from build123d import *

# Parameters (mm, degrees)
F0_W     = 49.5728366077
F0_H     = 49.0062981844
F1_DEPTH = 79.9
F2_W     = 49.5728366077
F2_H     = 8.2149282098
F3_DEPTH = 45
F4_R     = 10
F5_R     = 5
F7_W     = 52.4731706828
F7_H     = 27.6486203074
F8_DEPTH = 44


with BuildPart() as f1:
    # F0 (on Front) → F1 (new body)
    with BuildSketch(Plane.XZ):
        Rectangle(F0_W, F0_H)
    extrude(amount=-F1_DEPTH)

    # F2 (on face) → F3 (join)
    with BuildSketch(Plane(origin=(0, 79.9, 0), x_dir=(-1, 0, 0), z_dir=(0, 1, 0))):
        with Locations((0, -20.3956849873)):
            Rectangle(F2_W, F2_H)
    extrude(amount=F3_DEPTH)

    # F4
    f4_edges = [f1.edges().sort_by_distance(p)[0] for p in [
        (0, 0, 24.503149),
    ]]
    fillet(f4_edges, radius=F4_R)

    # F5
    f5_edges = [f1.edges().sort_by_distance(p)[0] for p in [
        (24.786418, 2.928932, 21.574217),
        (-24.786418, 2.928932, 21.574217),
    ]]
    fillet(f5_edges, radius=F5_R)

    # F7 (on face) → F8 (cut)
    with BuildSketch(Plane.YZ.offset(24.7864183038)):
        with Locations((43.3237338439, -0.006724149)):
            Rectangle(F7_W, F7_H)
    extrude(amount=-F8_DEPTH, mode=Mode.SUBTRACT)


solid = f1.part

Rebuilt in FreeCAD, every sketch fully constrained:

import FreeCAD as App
import Part
import Sketcher

V = App.Vector


def edges_at(feature, points):
    """Names of the edges that pass closest to the given points."""
    edges = feature.Shape.Edges
    near = lambda p: min(range(len(edges)), key=lambda i: edges[i].distToShape(Part.Vertex(*p))[0])
    return sorted({f"Edge{near(p) + 1}" for p in points})

doc = App.newDocument("Part")
body = doc.addObject("PartDesign::Body", "Body")

sketch1 = doc.addObject("Sketcher::SketchObject", "Sketch")
body.addObject(sketch1)
sketch1.AttachmentSupport = (doc.XZ_Plane, [""])
sketch1.MapMode = "FlatFace"
sketch1.addGeometry([
    Part.LineSegment(V(-25, 25, 0), V(-25, -25, 0)),
    Part.LineSegment(V(-25, -25, 0), V(25, -25, 0)),
    Part.LineSegment(V(25, -25, 0), V(25, 25, 0)),
    Part.LineSegment(V(25, 25, 0), V(-25, 25, 0)),
], False)
sketch1.addConstraint([
    Sketcher.Constraint("Coincident", 0, 2, 1, 1),
    Sketcher.Constraint("Coincident", 1, 2, 2, 1),
    Sketcher.Constraint("Coincident", 2, 2, 3, 1),
    Sketcher.Constraint("Coincident", 3, 2, 0, 1),
    Sketcher.Constraint("Vertical", 0),
    Sketcher.Constraint("Horizontal", 1),
    Sketcher.Constraint("Vertical", 2),
    Sketcher.Constraint("Horizontal", 3),
    Sketcher.Constraint("Symmetric", 0, 2, 2, 2, -1, 1),
    Sketcher.Constraint("DistanceY", 0, 2, 0, 1, 49.006298),
    Sketcher.Constraint("DistanceX", 1, 1, 1, 2, 49.572837),
])
pad1 = doc.addObject("PartDesign::Pad", "Pad")
body.addObject(pad1)
pad1.Profile = sketch1
pad1.Length = 79.9
pad1.Reversed = True

sketch2 = doc.addObject("Sketcher::SketchObject", "Sketch001")
body.addObject(sketch2)
sketch2.AttachmentSupport = (doc.XZ_Plane, [""])
sketch2.MapMode = "FlatFace"
sketch2.AttachmentOffset = App.Placement(V(0, 0, -79.9), App.Rotation())
sketch2.addGeometry([
    Part.LineSegment(V(25, -16, 0), V(25, -25, 0)),
    Part.LineSegment(V(25, -25, 0), V(-25, -25, 0)),
    Part.LineSegment(V(-25, -25, 0), V(-25, -16, 0)),
    Part.LineSegment(V(-25, -16, 0), V(25, -16, 0)),
], False)
sketch2.addConstraint([
    Sketcher.Constraint("Coincident", 0, 2, 1, 1),
    Sketcher.Constraint("Coincident", 1, 2, 2, 1),
    Sketcher.Constraint("Coincident", 2, 2, 3, 1),
    Sketcher.Constraint("Coincident", 3, 2, 0, 1),
    Sketcher.Constraint("Vertical", 0),
    Sketcher.Constraint("Horizontal", 1),
    Sketcher.Constraint("Vertical", 2),
    Sketcher.Constraint("Horizontal", 3),
    Sketcher.Constraint("DistanceY", 0, 2, 0, 1, 8.214928),
    Sketcher.Constraint("DistanceX", 1, 2, 1, 1, 49.572837),
    Sketcher.Constraint("DistanceX", -1, 1, 0, 2, 24.786418),
    Sketcher.Constraint("DistanceY", 0, 2, -1, 1, 24.503149),
])
pad2 = doc.addObject("PartDesign::Pad", "Pad001")
body.addObject(pad2)
pad2.Profile = sketch2
pad2.Length = 45
pad2.Reversed = True
doc.recompute()

fillet = doc.addObject("PartDesign::Fillet", "Fillet")
body.addObject(fillet)
fillet.Base = (pad2, edges_at(pad2, [(0, 0, 24.503)]))
fillet.Radius = 10
doc.recompute()

fillet2 = doc.addObject("PartDesign::Fillet", "Fillet001")
body.addObject(fillet2)
fillet2.Base = (fillet, edges_at(fillet, [(24.786, 2.929, 21.574), (-24.786, 2.929, 21.574)]))
fillet2.Radius = 5

sketch3 = doc.addObject("Sketcher::SketchObject", "Sketch002")
body.addObject(sketch3)
sketch3.AttachmentSupport = (doc.YZ_Plane, [""])
sketch3.MapMode = "FlatFace"
sketch3.AttachmentOffset = App.Placement(V(0, 0, 24.786418), App.Rotation())
sketch3.addGeometry([
    Part.LineSegment(V(17, 14, 0), V(17, -14, 0)),
    Part.LineSegment(V(17, -14, 0), V(70, -14, 0)),
    Part.LineSegment(V(70, -14, 0), V(70, 14, 0)),
    Part.LineSegment(V(70, 14, 0), V(17, 14, 0)),
], False)
sketch3.addConstraint([
    Sketcher.Constraint("Coincident", 0, 2, 1, 1),
    Sketcher.Constraint("Coincident", 1, 2, 2, 1),
    Sketcher.Constraint("Coincident", 2, 2, 3, 1),
    Sketcher.Constraint("Coincident", 3, 2, 0, 1),
    Sketcher.Constraint("Vertical", 0),
    Sketcher.Constraint("Horizontal", 1),
    Sketcher.Constraint("Vertical", 2),
    Sketcher.Constraint("Horizontal", 3),
    Sketcher.Constraint("DistanceX", 1, 1, 1, 2, 52.473171),
    Sketcher.Constraint("DistanceY", 0, 2, 0, 1, 27.64862),
    Sketcher.Constraint("DistanceX", -1, 1, 0, 2, 17.087149),
    Sketcher.Constraint("DistanceY", 0, 2, -1, 1, 13.831034),
])
pocket1 = doc.addObject("PartDesign::Pocket", "Pocket")
body.addObject(pocket1)
pocket1.Profile = sketch3
pocket1.Length = 44

doc.recompute()
